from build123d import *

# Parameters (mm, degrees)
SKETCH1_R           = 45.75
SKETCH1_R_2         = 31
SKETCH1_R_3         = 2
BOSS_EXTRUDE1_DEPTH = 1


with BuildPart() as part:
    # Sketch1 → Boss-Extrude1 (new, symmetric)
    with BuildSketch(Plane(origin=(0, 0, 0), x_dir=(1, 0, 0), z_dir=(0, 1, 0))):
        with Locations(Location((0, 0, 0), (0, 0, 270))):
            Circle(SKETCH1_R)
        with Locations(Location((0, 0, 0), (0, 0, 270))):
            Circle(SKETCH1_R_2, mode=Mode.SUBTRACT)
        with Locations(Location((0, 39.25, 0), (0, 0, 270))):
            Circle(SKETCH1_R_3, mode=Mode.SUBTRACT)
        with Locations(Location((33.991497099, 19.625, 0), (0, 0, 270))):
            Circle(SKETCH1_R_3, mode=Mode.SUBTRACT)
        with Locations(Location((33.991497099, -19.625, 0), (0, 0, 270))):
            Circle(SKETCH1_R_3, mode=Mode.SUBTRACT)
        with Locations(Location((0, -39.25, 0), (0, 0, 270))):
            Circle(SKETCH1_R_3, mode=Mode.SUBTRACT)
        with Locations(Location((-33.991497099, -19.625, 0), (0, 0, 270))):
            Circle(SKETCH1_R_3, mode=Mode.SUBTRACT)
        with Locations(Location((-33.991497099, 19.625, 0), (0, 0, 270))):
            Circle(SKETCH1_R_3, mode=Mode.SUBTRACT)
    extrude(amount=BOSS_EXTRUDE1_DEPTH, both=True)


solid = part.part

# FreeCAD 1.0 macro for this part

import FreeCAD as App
import Part
import Sketcher

V = App.Vector
Q = App.Units.Quantity

doc = App.newDocument("Part")
body = doc.addObject("PartDesign::Body", "Body")

# Sketch on XZ plane
sketch1 = doc.addObject("Sketcher::SketchObject", "Sketch")
body.addObject(sketch1)
sketch1.AttachmentSupport = (doc.XZ_Plane, [""])
sketch1.MapMode = "FlatFace"
sketch1.addGeometry([
    Part.Circle(V(0, 0, 0), V(0, 0, 1), 45.8),  # 0
    Part.Circle(V(-34, -19.6, 0), V(0, 0, 1), 2),  # 1
    Part.Circle(V(0, -39.2, 0), V(0, 0, 1), 2),  # 2
    Part.Circle(V(-34, 19.6, 0), V(0, 0, 1), 2),  # 3
    Part.Circle(V(34, -19.6, 0), V(0, 0, 1), 2),  # 4
    Part.Circle(V(0, 0, 0), V(0, 0, 1), 31),  # 5
    Part.Circle(V(0, 39.2, 0), V(0, 0, 1), 2),  # 6
    Part.Circle(V(34, 19.6, 0), V(0, 0, 1), 2),  # 7
], False)
sketch1.addConstraint([
    Sketcher.Constraint("Coincident", 0, 3, -1, 1),
    Sketcher.Constraint("Coincident", 5, 3, -1, 1),
    Sketcher.Constraint("Equal", 1, 2),
    Sketcher.Constraint("Equal", 2, 3),
    Sketcher.Constraint("Equal", 3, 4),
    Sketcher.Constraint("Equal", 4, 6),
    Sketcher.Constraint("Equal", 6, 7),
    Sketcher.Constraint("Symmetric", 3, 3, 4, 3, -1, 1),
    Sketcher.Constraint("Symmetric", 2, 3, 6, 3, -1, 1),
    Sketcher.Constraint("Symmetric", 1, 3, 7, 3, -1, 1),
    Sketcher.Constraint("Symmetric", 1, 3, 4, 3, -2),
    Sketcher.Constraint("PointOnObject", 2, 3, -2),
    Sketcher.Constraint("Diameter", 1, Q("4 mm")),
    Sketcher.Constraint("Diameter", 5, Q("62 mm")),
    Sketcher.Constraint("Diameter", 0, Q("91.5 mm")),
    Sketcher.Constraint("DistanceY", 2, 3, -1, 1, Q("39.25 mm")),
    Sketcher.Constraint("DistanceY", 1, 3, 3, 3, Q("39.25 mm")),
    Sketcher.Constraint("DistanceX", 1, 3, -1, 1, Q("33.991497 mm")),
])
pad1 = doc.addObject("PartDesign::Pad", "Pad")
body.addObject(pad1)
pad1.Profile = sketch1
pad1.Length = 2
pad1.Midplane = True

doc.recompute()
